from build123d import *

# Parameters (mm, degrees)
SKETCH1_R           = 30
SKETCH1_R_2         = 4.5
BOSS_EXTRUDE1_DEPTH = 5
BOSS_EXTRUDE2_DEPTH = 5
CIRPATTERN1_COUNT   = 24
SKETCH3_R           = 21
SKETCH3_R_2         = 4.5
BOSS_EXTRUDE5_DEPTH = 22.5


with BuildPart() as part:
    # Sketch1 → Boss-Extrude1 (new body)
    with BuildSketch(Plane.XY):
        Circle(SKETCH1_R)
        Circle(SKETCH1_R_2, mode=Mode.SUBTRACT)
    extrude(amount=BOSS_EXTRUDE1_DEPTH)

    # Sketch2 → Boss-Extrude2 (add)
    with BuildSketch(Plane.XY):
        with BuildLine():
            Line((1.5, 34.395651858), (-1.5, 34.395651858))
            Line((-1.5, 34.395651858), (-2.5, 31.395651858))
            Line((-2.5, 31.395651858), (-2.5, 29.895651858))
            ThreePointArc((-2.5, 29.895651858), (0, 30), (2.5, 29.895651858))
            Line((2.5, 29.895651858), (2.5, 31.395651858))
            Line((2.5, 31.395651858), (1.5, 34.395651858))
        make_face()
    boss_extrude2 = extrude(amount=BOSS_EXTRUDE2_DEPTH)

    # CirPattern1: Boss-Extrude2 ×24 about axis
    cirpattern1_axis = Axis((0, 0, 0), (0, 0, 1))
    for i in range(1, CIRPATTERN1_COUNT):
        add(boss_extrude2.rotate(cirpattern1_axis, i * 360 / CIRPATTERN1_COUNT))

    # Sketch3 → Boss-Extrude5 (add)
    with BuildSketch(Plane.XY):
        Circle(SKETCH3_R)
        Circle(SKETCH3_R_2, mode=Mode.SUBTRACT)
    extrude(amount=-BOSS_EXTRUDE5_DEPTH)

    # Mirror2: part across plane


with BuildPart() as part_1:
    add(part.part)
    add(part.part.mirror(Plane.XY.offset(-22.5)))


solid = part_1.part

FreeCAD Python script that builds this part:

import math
import FreeCAD as App
import Part
import Sketcher

V = App.Vector

doc = App.newDocument("Part")
body = doc.addObject("PartDesign::Body", "Body")

sketch1 = doc.addObject("Sketcher::SketchObject", "Sketch")
body.addObject(sketch1)
sketch1.AttachmentSupport = (doc.XY_Plane, [""])
sketch1.MapMode = "FlatFace"
sketch1.addGeometry([
    Part.Circle(V(0, 0, 0), V(0, 0, 1), 30),
    Part.Circle(V(0, 0, 0), V(0, 0, 1), 4.5),
], False)
sketch1.addConstraint([
    Sketcher.Constraint("Coincident", 0, 3, -1, 1),
    Sketcher.Constraint("Coincident", 1, 3, -1, 1),
    Sketcher.Constraint("Diameter", 0, 60.0),
    Sketcher.Constraint("Diameter", 1, 9.0),
])
pad1 = doc.addObject("PartDesign::Pad", "Pad")
body.addObject(pad1)
pad1.Profile = sketch1
pad1.Length = 5

sketch2 = doc.addObject("Sketcher::SketchObject", "Sketch001")
body.addObject(sketch2)
sketch2.AttachmentSupport = (doc.XY_Plane, [""])
sketch2.MapMode = "FlatFace"
sketch2.addGeometry([
    Part.LineSegment(V(1.5, 34.395652, 0), V(-1.5, 34.395652, 0)),
    Part.LineSegment(V(-1.5, 34.395652, 0), V(-2.5, 31.395652, 0)),
    Part.LineSegment(V(-2.5, 31.395652, 0), V(-2.5, 29.895652, 0)),
    Part.ArcOfCircle(Part.Circle(V(0, 0, 0), V(0, 0, 1), 30), math.radians(85.219808), math.radians(94.780192)),
    Part.LineSegment(V(2.5, 29.895652, 0), V(2.5, 31.395652, 0)),
    Part.LineSegment(V(2.5, 31.395652, 0), V(1.5, 34.395652, 0)),
], False)
sketch2.addConstraint([
    Sketcher.Constraint("Coincident", 0, 2, 1, 1),
    Sketcher.Constraint("Coincident", 1, 2, 2, 1),
    Sketcher.Constraint("Coincident", 2, 2, 3, 2),
    Sketcher.Constraint("Coincident", 3, 1, 4, 1),
    Sketcher.Constraint("Coincident", 4, 2, 5, 1),
    Sketcher.Constraint("Coincident", 5, 2, 0, 1),
    Sketcher.Constraint("Horizontal", 0),
    Sketcher.Constraint("Vertical", 2),
    Sketcher.Constraint("Vertical", 4),
    Sketcher.Constraint("Coincident", 3, 3, -1, 1),
    Sketcher.Constraint("Symmetric", 1, 2, 4, 2, -2),
    Sketcher.Constraint("Equal", 1, 5),
    Sketcher.Constraint("Radius", 3, 30.0),
    Sketcher.Constraint("DistanceX", 0, 2, 0, 1, 3.0),
    Sketcher.Constraint("DistanceY", 2, 2, 2, 1, 1.5),
    Sketcher.Constraint("DistanceX", 1, 2, 0, 2, 1.0),
    Sketcher.Constraint("DistanceY", 1, 2, 0, 2, 3.0),
])
pad2 = doc.addObject("PartDesign::Pad", "Pad001")
body.addObject(pad2)
pad2.Profile = sketch2
pad2.Length = 5
doc.recompute()

polarpattern = doc.addObject("PartDesign::PolarPattern", "PolarPattern")
body.addObject(polarpattern)
polarpattern.Originals = [pad2]
polarpattern.Axis = (doc.Z_Axis, [""])
polarpattern.Angle = 360
polarpattern.Occurrences = 24
body.Tip = polarpattern

sketch3 = doc.addObject("Sketcher::SketchObject", "Sketch002")
body.addObject(sketch3)
sketch3.AttachmentSupport = (doc.XY_Plane, [""])
sketch3.MapMode = "FlatFace"
sketch3.addGeometry([
    Part.Circle(V(0, 0, 0), V(0, 0, 1), 21),
    Part.Circle(V(0, 0, 0), V(0, 0, 1), 4.5),
], False)
sketch3.addConstraint([
    Sketcher.Constraint("Coincident", 0, 3, -1, 1),
    Sketcher.Constraint("Coincident", 1, 3, -1, 1),
    Sketcher.Constraint("Diameter", 0, 42.0),
    Sketcher.Constraint("Diameter", 1, 9.0),
])
pad3 = doc.addObject("PartDesign::Pad", "Pad002")
body.addObject(pad3)
pad3.Profile = sketch3
pad3.Length = 22.5
pad3.Reversed = True
body2 = doc.addObject("PartDesign::Body", "Body001")
doc.recompute()

body2.BaseFeature = body
doc.recompute()

mirroring = doc.addObject("Part::Mirroring", "Mirroring")
mirroring.Source = body
mirroring.Base = V(0, 0, -22.5)
mirroring.Normal = V(0, 0, 1)
body3 = doc.addObject("PartDesign::Body", "Body002")
body3.BaseFeature = mirroring
boolean = doc.addObject("PartDesign::Boolean", "Boolean")
body2.addObject(boolean)
boolean.Type = "Fuse"
boolean.addObjects([body3])
doc.recompute()
mirroring.Visibility = False

doc.recompute()
